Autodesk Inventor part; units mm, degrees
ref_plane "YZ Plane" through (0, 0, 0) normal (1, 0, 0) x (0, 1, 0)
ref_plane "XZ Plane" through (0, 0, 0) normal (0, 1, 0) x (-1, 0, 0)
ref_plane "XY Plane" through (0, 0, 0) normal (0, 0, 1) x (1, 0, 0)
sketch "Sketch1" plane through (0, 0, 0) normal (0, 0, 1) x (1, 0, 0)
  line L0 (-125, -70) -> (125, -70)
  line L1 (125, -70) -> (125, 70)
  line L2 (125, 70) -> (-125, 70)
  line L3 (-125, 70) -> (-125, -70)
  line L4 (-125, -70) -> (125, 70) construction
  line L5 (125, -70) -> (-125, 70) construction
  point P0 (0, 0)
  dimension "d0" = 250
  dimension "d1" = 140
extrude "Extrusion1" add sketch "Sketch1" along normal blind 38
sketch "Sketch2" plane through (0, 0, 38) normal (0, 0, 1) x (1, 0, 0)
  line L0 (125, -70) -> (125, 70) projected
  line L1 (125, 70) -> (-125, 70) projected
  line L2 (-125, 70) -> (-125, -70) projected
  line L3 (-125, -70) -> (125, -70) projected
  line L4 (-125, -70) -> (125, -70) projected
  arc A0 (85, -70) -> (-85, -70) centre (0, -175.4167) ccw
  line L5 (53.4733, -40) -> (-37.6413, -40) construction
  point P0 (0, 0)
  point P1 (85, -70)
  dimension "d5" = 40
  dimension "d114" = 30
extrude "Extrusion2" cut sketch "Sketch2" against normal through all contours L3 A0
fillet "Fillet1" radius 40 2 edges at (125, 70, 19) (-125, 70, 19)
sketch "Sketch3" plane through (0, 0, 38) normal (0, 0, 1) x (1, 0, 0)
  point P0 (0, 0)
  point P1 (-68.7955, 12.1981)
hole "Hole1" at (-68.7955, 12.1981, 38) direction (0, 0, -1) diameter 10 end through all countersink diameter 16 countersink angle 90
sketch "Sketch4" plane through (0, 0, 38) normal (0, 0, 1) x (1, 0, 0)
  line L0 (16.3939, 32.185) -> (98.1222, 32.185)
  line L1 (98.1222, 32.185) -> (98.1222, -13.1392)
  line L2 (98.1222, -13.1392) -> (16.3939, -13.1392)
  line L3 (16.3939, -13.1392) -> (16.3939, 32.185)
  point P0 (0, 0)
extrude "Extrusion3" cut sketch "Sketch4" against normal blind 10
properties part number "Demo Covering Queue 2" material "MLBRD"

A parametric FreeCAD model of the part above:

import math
import FreeCAD as App
import Part
import Sketcher
Q = App.Units.Quantity


def edges_at(feature, points):
    """Names of the edges that pass closest to the given points."""
    edges = feature.Shape.Edges
    near = lambda p: min(range(len(edges)), key=lambda i: edges[i].distToShape(Part.Vertex(*p))[0])
    return sorted({f"Edge{near(p) + 1}" for p in points})

doc = App.newDocument("Part")
body = doc.addObject("PartDesign::Body", "Body")

sketch1 = doc.addObject("Sketcher::SketchObject", "Sketch")
body.addObject(sketch1)
sketch1.AttachmentSupport = (doc.XY_Plane, [""])
sketch1.MapMode = "FlatFace"
sketch1.addGeometry(Part.LineSegment(App.Vector(-125, 70, 0), App.Vector(-125, -70, 0)), False)
sketch1.addGeometry(Part.LineSegment(App.Vector(-125, -70, 0), App.Vector(125, -70, 0)), False)
sketch1.addGeometry(Part.LineSegment(App.Vector(125, -70, 0), App.Vector(125, 70, 0)), False)
sketch1.addGeometry(Part.LineSegment(App.Vector(125, 70, 0), App.Vector(-125, 70, 0)), False)
sketch1.addConstraint(Sketcher.Constraint("Coincident", 0, 2, 1, 1))
sketch1.addConstraint(Sketcher.Constraint("Coincident", 1, 2, 2, 1))
sketch1.addConstraint(Sketcher.Constraint("Coincident", 2, 2, 3, 1))
sketch1.addConstraint(Sketcher.Constraint("Coincident", 3, 2, 0, 1))
sketch1.addConstraint(Sketcher.Constraint("Vertical", 0))
sketch1.addConstraint(Sketcher.Constraint("Horizontal", 1))
sketch1.addConstraint(Sketcher.Constraint("Vertical", 2))
sketch1.addConstraint(Sketcher.Constraint("Horizontal", 3))
sketch1.addConstraint(Sketcher.Constraint("Symmetric", 0, 2, 2, 2, -1, 1))
sketch1.addConstraint(Sketcher.Constraint("DistanceX", 1, 1, 1, 2, Q("250 mm")))
sketch1.addConstraint(Sketcher.Constraint("DistanceY", 0, 2, 0, 1, Q("140 mm")))
pad1 = doc.addObject("PartDesign::Pad", "Pad")
body.addObject(pad1)
pad1.Profile = sketch1
pad1.Length = 38

sketch2 = doc.addObject("Sketcher::SketchObject", "Sketch001")
body.addObject(sketch2)
sketch2.AttachmentSupport = (doc.XY_Plane, [""])
sketch2.MapMode = "FlatFace"
sketch2.AttachmentOffset = App.Placement(App.Vector(0, 0, 38), App.Rotation())
sketch2.addGeometry(Part.LineSegment(App.Vector(-85, -70, 0), App.Vector(85, -70, 0)), False)
sketch2.addGeometry(Part.ArcOfCircle(Part.Circle(App.Vector(0, -175, 0), App.Vector(0, 0, 1), 135), math.radians(51), math.radians(129)), False)
sketch2.addConstraint(Sketcher.Constraint("Coincident", 0, 1, 1, 2))
sketch2.addConstraint(Sketcher.Constraint("Coincident", 1, 1, 0, 2))
sketch2.addConstraint(Sketcher.Constraint("Horizontal", 0))
sketch2.addConstraint(Sketcher.Constraint("PointOnObject", 1, 3, -2))
sketch2.addConstraint(Sketcher.Constraint("DistanceX", 0, 1, 0, 2, Q("170 mm")))
sketch2.addConstraint(Sketcher.Constraint("DistanceY", 0, 1, -1, 1, Q("70 mm")))
sketch2.addConstraint(Sketcher.Constraint("Radius", 1, Q("135.4167 mm")))
pocket1 = doc.addObject("PartDesign::Pocket", "Pocket")
body.addObject(pocket1)
pocket1.Profile = sketch2
pocket1.Type = "ThroughAll"
doc.recompute()

fillet = doc.addObject("PartDesign::Fillet", "Fillet")
body.addObject(fillet)
fillet.Base = (pocket1, edges_at(pocket1, [(125, 70, 19), (-125, 70, 19)]))
fillet.Radius = 40

sketch3 = doc.addObject("Sketcher::SketchObject", "Sketch002")
body.addObject(sketch3)
sketch3.AttachmentSupport = (doc.XY_Plane, [""])
sketch3.MapMode = "FlatFace"
sketch3.AttachmentOffset = App.Placement(App.Vector(0, 0, 38), App.Rotation())
sketch3.addGeometry(Part.Circle(App.Vector(-69, 12, 0), App.Vector(0, 0, 1), 5), False)
sketch3.addConstraint(Sketcher.Constraint("Diameter", 0, Q("10 mm")))
sketch3.addConstraint(Sketcher.Constraint("DistanceY", -1, 1, 0, 3, Q("12.198 mm")))
sketch3.addConstraint(Sketcher.Constraint("DistanceX", 0, 3, -1, 1, Q("68.7955 mm")))
doc.recompute()
hole = doc.addObject("PartDesign::Hole", "Hole")
body.addObject(hole)
hole.Profile = sketch3
hole.ThreadType = "None"
hole.Diameter = 10
hole.DepthType = "ThroughAll"
hole.HoleCutType = "Countersink"
hole.HoleCutDiameter = 16
hole.HoleCutCountersinkAngle = 90

sketch4 = doc.addObject("Sketcher::SketchObject", "Sketch003")
body.addObject(sketch4)
sketch4.AttachmentSupport = (doc.XY_Plane, [""])
sketch4.MapMode = "FlatFace"
sketch4.AttachmentOffset = App.Placement(App.Vector(0, 0, 38), App.Rotation())
sketch4.addGeometry(Part.LineSegment(App.Vector(98, 32, 0), App.Vector(16, 32, 0)), False)
sketch4.addGeometry(Part.LineSegment(App.Vector(16, 32, 0), App.Vector(16, -13, 0)), False)
sketch4.addGeometry(Part.LineSegment(App.Vector(16, -13, 0), App.Vector(98, -13, 0)), False)
sketch4.addGeometry(Part.LineSegment(App.Vector(98, -13, 0), App.Vector(98, 32, 0)), False)
sketch4.addConstraint(Sketcher.Constraint("Coincident", 0, 2, 1, 1))
sketch4.addConstraint(Sketcher.Constraint("Coincident", 1, 2, 2, 1))
sketch4.addConstraint(Sketcher.Constraint("Coincident", 2, 2, 3, 1))
sketch4.addConstraint(Sketcher.Constraint("Coincident", 3, 2, 0, 1))
sketch4.addConstraint(Sketcher.Constraint("Horizontal", 0))
sketch4.addConstraint(Sketcher.Constraint("Vertical", 1))
sketch4.addConstraint(Sketcher.Constraint("Horizontal", 2))
sketch4.addConstraint(Sketcher.Constraint("Vertical", 3))
sketch4.addConstraint(Sketcher.Constraint("DistanceX", 0, 2, 0, 1, Q("81.7283 mm")))
sketch4.addConstraint(Sketcher.Constraint("DistanceY", 1, 2, 1, 1, Q("45.3242 mm")))
sketch4.addConstraint(Sketcher.Constraint("DistanceX", -1, 1, 0, 2, Q("16.394 mm")))
sketch4.addConstraint(Sketcher.Constraint("DistanceY", -1, 1, 0, 2, Q("32.185 mm")))
pocket2 = doc.addObject("PartDesign::Pocket", "Pocket001")
body.addObject(pocket2)
pocket2.Profile = sketch4
pocket2.Length = 10

doc.recompute()
